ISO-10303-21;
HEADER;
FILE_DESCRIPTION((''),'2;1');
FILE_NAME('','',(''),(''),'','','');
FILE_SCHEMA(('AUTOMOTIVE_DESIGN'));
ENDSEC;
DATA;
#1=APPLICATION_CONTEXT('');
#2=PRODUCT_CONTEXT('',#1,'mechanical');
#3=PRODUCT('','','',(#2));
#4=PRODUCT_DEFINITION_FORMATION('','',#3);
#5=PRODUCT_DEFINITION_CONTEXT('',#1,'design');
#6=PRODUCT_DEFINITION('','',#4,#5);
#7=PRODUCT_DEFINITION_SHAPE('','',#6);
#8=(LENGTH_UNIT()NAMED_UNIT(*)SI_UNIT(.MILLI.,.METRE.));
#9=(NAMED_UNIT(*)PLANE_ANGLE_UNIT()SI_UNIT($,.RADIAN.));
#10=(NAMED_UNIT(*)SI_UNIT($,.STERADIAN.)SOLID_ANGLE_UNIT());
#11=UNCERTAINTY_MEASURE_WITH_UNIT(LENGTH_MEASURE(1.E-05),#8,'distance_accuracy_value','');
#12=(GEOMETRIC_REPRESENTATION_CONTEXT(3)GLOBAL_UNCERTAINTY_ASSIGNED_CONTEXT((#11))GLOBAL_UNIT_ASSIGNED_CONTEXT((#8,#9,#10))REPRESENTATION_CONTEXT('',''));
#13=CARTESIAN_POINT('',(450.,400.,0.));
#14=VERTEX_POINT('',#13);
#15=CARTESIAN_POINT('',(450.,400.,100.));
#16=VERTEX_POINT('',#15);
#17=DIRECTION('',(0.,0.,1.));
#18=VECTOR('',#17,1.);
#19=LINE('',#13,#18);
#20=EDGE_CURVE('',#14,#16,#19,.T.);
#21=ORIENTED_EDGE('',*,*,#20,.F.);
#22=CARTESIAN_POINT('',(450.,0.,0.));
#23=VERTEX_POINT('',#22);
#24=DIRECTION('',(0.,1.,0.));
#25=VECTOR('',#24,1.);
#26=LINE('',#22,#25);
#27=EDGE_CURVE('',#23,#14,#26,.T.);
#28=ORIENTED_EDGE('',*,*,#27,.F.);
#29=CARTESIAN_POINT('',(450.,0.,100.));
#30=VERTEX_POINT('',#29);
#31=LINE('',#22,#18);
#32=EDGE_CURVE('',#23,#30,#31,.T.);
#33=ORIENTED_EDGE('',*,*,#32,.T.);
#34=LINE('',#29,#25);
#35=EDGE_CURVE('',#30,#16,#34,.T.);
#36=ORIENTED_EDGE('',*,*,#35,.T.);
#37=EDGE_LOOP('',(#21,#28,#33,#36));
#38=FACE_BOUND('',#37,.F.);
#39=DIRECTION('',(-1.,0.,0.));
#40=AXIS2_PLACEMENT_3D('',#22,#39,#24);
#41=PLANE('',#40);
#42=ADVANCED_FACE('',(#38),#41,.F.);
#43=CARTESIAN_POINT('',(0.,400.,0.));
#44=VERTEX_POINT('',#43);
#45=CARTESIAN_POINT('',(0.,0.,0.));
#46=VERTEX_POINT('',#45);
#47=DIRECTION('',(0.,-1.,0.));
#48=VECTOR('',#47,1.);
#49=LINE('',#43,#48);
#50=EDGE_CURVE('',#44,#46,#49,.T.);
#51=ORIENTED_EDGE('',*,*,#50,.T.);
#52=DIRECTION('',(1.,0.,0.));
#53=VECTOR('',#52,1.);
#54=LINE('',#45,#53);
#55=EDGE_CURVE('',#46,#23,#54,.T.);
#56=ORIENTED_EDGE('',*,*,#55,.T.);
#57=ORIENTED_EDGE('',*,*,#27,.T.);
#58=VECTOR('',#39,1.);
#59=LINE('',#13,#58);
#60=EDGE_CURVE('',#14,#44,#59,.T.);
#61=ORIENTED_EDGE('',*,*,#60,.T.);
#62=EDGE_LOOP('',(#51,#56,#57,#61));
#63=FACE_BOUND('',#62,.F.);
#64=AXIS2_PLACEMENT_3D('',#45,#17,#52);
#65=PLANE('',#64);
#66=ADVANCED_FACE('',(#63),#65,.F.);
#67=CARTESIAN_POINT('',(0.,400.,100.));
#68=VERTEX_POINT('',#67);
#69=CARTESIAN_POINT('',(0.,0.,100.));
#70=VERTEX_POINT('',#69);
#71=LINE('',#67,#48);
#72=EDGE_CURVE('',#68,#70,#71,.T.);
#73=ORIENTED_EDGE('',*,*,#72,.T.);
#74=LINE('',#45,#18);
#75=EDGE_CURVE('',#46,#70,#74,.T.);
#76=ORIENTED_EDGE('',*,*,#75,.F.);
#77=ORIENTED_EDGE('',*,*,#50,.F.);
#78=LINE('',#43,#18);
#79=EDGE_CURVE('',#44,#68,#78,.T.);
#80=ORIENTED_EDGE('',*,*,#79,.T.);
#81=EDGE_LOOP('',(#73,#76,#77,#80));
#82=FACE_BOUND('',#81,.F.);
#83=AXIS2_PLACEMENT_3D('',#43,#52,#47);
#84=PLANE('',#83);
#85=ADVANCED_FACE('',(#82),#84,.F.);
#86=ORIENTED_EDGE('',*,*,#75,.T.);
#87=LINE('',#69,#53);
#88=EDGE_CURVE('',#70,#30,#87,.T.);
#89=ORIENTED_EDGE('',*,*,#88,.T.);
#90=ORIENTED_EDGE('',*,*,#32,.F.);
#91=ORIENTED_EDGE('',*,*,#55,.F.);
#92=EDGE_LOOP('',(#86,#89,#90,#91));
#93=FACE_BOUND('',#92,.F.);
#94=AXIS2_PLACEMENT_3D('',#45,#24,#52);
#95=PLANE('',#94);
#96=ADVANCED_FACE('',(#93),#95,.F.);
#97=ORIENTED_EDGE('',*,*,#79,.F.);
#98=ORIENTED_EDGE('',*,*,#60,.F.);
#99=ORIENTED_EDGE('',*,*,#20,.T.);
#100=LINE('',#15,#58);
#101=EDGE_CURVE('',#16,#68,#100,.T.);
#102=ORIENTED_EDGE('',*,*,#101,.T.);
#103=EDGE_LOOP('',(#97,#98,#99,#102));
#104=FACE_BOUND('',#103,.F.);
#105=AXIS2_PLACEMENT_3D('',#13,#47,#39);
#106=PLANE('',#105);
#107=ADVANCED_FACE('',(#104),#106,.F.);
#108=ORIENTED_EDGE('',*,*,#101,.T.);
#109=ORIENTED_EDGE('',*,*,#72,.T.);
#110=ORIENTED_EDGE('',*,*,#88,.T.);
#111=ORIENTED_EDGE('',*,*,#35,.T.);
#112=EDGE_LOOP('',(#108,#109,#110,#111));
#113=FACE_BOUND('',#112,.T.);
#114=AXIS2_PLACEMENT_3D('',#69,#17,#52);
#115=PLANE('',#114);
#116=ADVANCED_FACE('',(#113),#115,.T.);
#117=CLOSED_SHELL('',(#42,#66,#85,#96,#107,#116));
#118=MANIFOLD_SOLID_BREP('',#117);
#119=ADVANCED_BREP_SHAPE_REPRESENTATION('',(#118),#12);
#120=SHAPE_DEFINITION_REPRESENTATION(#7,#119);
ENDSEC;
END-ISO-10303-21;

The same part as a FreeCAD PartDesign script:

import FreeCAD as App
import Part
import Sketcher

V = App.Vector


def add_polygon(sketch, points):
    """Adds a closed chain of lines whose ends are joined by coincident constraints."""
    first, n = sketch.GeometryCount, len(points)
    for a, b in zip(points, points[1:] + points[:1]):
        sketch.addGeometry(Part.LineSegment(App.Vector(*a, 0), App.Vector(*b, 0)), False)
    for i in range(n):
        sketch.addConstraint(Sketcher.Constraint("Coincident", first + i, 2, first + (i + 1) % n, 1))

doc = App.newDocument("Part")
params = doc.addObject("Spreadsheet::Sheet", "Params")
for row, (alias, value) in enumerate([
    ("sketch1_width", "450 mm"),
    ("sketch1_height", "400 mm"),
    ("pad1_length", "100 mm"),
], start=1):
    params.set(f"A{row}", alias)
    params.set(f"B{row}", "=" + value)
    params.setAlias(f"B{row}", alias)

body = doc.addObject("PartDesign::Body", "Body")

sketch1 = body.newObject("Sketcher::SketchObject", "Sketch")
sketch1.AttachmentSupport = (doc.getObject("XY_Plane"), [""])
sketch1.MapMode = "FlatFace"
add_polygon(sketch1, [(0, 400), (0, 0), (450, 0), (450, 400)])
sketch1.addConstraint(Sketcher.Constraint("Vertical", 0))
sketch1.addConstraint(Sketcher.Constraint("Horizontal", 1))
sketch1.addConstraint(Sketcher.Constraint("Vertical", 2))
sketch1.addConstraint(Sketcher.Constraint("Horizontal", 3))
sketch1.addConstraint(Sketcher.Constraint("Coincident", 0, 2, -1, 1))
sketch1.addConstraint(Sketcher.Constraint("DistanceX", 1, 1, 1, 2, 450.0))
sketch1.addConstraint(Sketcher.Constraint("DistanceY", 0, 2, 0, 1, 400.0))
sketch1.setExpression("Constraints[9]", "Params.sketch1_width")
sketch1.setExpression("Constraints[10]", "Params.sketch1_height")
pad1 = body.newObject("PartDesign::Pad", "Pad")
pad1.Profile = sketch1
pad1.setExpression("Length", "Params.pad1_length")

doc.recompute()
